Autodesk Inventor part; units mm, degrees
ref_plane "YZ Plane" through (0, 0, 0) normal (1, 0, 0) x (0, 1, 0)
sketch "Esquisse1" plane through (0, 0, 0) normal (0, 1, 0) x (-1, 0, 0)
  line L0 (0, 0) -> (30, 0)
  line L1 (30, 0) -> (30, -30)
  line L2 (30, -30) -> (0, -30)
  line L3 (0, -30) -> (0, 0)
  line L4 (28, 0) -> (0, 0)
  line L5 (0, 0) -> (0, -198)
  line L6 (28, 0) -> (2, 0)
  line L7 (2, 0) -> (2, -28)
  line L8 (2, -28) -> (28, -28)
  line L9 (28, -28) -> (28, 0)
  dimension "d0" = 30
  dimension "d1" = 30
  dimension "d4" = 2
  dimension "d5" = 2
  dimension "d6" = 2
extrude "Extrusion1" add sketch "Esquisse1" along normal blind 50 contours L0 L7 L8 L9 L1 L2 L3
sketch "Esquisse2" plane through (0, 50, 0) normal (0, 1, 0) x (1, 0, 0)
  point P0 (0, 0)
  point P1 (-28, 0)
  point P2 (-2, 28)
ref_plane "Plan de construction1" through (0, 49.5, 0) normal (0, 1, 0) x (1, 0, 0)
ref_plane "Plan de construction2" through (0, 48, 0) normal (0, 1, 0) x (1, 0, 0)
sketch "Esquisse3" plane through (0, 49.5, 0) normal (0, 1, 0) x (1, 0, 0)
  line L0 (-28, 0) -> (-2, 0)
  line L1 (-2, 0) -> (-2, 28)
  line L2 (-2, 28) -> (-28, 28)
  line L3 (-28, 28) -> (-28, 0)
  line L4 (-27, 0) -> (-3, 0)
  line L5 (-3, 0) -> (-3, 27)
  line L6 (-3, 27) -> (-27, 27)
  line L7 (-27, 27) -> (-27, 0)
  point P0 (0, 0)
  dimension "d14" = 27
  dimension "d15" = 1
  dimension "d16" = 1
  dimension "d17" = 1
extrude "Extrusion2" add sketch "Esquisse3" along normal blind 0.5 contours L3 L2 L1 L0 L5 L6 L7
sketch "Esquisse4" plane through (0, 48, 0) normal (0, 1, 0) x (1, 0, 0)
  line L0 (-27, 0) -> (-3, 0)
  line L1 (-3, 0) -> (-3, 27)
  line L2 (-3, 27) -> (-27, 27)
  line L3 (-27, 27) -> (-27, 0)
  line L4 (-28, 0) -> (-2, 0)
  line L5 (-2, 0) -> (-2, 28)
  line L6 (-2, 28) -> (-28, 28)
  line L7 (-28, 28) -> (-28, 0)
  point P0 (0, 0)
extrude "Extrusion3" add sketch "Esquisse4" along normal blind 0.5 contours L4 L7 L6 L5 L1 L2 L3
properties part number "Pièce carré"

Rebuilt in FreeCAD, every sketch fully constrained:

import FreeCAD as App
import Part
import Sketcher
from FreeCAD import Vector
Q = App.Units.Quantity


def add_polygon(sketch, points):
    """Adds a closed chain of lines whose ends are joined by coincident constraints."""
    first, n = sketch.GeometryCount, len(points)
    for a, b in zip(points, points[1:] + points[:1]):
        sketch.addGeometry(Part.LineSegment(App.Vector(*a, 0), App.Vector(*b, 0)), False)
    for i in range(n):
        sketch.addConstraint(Sketcher.Constraint("Coincident", first + i, 2, first + (i + 1) % n, 1))

doc = App.newDocument("Part")
params = doc.addObject("Spreadsheet::Sheet", "Params")
for row, (alias, value) in enumerate([
    ("sketch1_width", "2 mm"),
    ("sketch1_width2", "30 mm"),
    ("pad1_length", "50 mm"),
    ("sketch2_width", "1 mm"),
    ("sketch2_height", "27 mm"),
    ("sketch2_width2", "24 mm"),
    ("pad2_length", "0.5 mm"),
    ("sketch3_width", "1 mm"),
    ("sketch3_width2", "24 mm"),
    ("sketch3_height", "27 mm"),
    ("sketch3_height2", "28 mm"),
    ("pad3_length", "0.5 mm"),
], start=1):
    params.set(f"A{row}", alias)
    params.set(f"B{row}", "=" + value)
    params.setAlias(f"B{row}", alias)

body = doc.addObject("PartDesign::Body", "Body")

# Sketch on XZ plane
sketch1 = doc.addObject("Sketcher::SketchObject", "Sketch")
body.addObject(sketch1)
sketch1.AttachmentSupport = (doc.XZ_Plane, [""])
sketch1.MapMode = "FlatFace"
add_polygon(sketch1, [(-2, 0), (0, 0), (0, -30), (-30, -30), (-30, 0), (-28, 0), (-28, -28), (-2, -28)])  # lines 0-7
sketch1.addConstraint(Sketcher.Constraint("Horizontal", 0))
sketch1.addConstraint(Sketcher.Constraint("Vertical", 1))
sketch1.addConstraint(Sketcher.Constraint("Horizontal", 2))
sketch1.addConstraint(Sketcher.Constraint("Vertical", 3))
sketch1.addConstraint(Sketcher.Constraint("Horizontal", 4))
sketch1.addConstraint(Sketcher.Constraint("Vertical", 5))
sketch1.addConstraint(Sketcher.Constraint("Horizontal", 6))
sketch1.addConstraint(Sketcher.Constraint("Vertical", 7))
sketch1.addConstraint(Sketcher.Constraint("Coincident", 0, 2, -1, 1))
sketch1.addConstraint(Sketcher.Constraint("PointOnObject", 3, 2, -1))
sketch1.addConstraint(Sketcher.Constraint("Equal", 0, 4))
sketch1.addConstraint(Sketcher.Constraint("Equal", 2, 1))
sketch1.addConstraint(Sketcher.Constraint("DistanceX", 0, 1, 0, 2, Q("2 mm")))
sketch1.addConstraint(Sketcher.Constraint("DistanceX", 2, 2, 2, 1, Q("30 mm")))
sketch1.addConstraint(Sketcher.Constraint("DistanceY", 2, 2, 5, 2, Q("2 mm")))
sketch1.setExpression("Constraints[20]", "Params.sketch1_width")
sketch1.setExpression("Constraints[21]", "Params.sketch1_width2")
pad1 = doc.addObject("PartDesign::Pad", "Pad")
body.addObject(pad1)
pad1.Profile = sketch1
pad1.setExpression("Length", "Params.pad1_length")
pad1.Reversed = True

# Sketch on XZ plane
sketch2 = doc.addObject("Sketcher::SketchObject", "Sketch001")
body.addObject(sketch2)
sketch2.AttachmentSupport = (doc.XZ_Plane, [""])
sketch2.MapMode = "FlatFace"
sketch2.AttachmentOffset = App.Placement(Vector(0, 0, -49.5), App.Rotation())
add_polygon(sketch2, [(-28, -28), (-28, 0), (-27, 0), (-27, -27), (-3, -27), (-3, 0), (-2, 0), (-2, -28)])  # lines 0-7
sketch2.addConstraint(Sketcher.Constraint("Vertical", 0))
sketch2.addConstraint(Sketcher.Constraint("Horizontal", 1))
sketch2.addConstraint(Sketcher.Constraint("Vertical", 2))
sketch2.addConstraint(Sketcher.Constraint("Horizontal", 3))
sketch2.addConstraint(Sketcher.Constraint("Vertical", 4))
sketch2.addConstraint(Sketcher.Constraint("Horizontal", 5))
sketch2.addConstraint(Sketcher.Constraint("Vertical", 6))
sketch2.addConstraint(Sketcher.Constraint("Horizontal", 7))
sketch2.addConstraint(Sketcher.Constraint("PointOnObject", 0, 2, -1))
sketch2.addConstraint(Sketcher.Constraint("PointOnObject", 4, 2, -1))
sketch2.addConstraint(Sketcher.Constraint("Equal", 1, 5))
sketch2.addConstraint(Sketcher.Constraint("DistanceX", 1, 1, 1, 2, Q("1 mm")))
sketch2.addConstraint(Sketcher.Constraint("DistanceY", 2, 2, 2, 1, Q("27 mm")))
sketch2.addConstraint(Sketcher.Constraint("DistanceX", 1, 2, -1, 1, Q("27 mm")))
sketch2.addConstraint(Sketcher.Constraint("DistanceY", 6, 2, 3, 2, Q("1 mm")))
sketch2.addConstraint(Sketcher.Constraint("DistanceX", 3, 1, 3, 2, Q("24 mm")))
sketch2.setExpression("Constraints[19]", "Params.sketch2_width")
sketch2.setExpression("Constraints[20]", "Params.sketch2_height")
sketch2.setExpression("Constraints[23]", "Params.sketch2_width2")
pad2 = doc.addObject("PartDesign::Pad", "Pad001")
body.addObject(pad2)
pad2.Profile = sketch2
pad2.setExpression("Length", "Params.pad2_length")
pad2.Reversed = True

# Sketch on XZ plane
sketch3 = doc.addObject("Sketcher::SketchObject", "Sketch002")
body.addObject(sketch3)
sketch3.AttachmentSupport = (doc.XZ_Plane, [""])
sketch3.MapMode = "FlatFace"
sketch3.AttachmentOffset = App.Placement(Vector(0, 0, -48), App.Rotation())
add_polygon(sketch3, [(-28, 0), (-27, 0), (-27, -27), (-3, -27), (-3, 0), (-2, 0), (-2, -28), (-28, -28)])  # lines 0-7
sketch3.addConstraint(Sketcher.Constraint("Horizontal", 0))
sketch3.addConstraint(Sketcher.Constraint("Vertical", 1))
sketch3.addConstraint(Sketcher.Constraint("Horizontal", 2))
sketch3.addConstraint(Sketcher.Constraint("Vertical", 3))
sketch3.addConstraint(Sketcher.Constraint("Horizontal", 4))
sketch3.addConstraint(Sketcher.Constraint("Vertical", 5))
sketch3.addConstraint(Sketcher.Constraint("Horizontal", 6))
sketch3.addConstraint(Sketcher.Constraint("Vertical", 7))
sketch3.addConstraint(Sketcher.Constraint("PointOnObject", 0, 2, -1))
sketch3.addConstraint(Sketcher.Constraint("PointOnObject", 3, 2, -1))
sketch3.addConstraint(Sketcher.Constraint("Equal", 0, 4))
sketch3.addConstraint(Sketcher.Constraint("DistanceX", 0, 1, 0, 2, Q("1 mm")))
sketch3.addConstraint(Sketcher.Constraint("DistanceX", 2, 1, 2, 2, Q("24 mm")))
sketch3.addConstraint(Sketcher.Constraint("DistanceY", 1, 2, 1, 1, Q("27 mm")))
sketch3.addConstraint(Sketcher.Constraint("DistanceY", 5, 2, 5, 1, Q("28 mm")))
sketch3.addConstraint(Sketcher.Constraint("DistanceX", 0, 2, -1, 1, Q("27 mm")))
sketch3.setExpression("Constraints[19]", "Params.sketch3_width")
sketch3.setExpression("Constraints[20]", "Params.sketch3_width2")
sketch3.setExpression("Constraints[21]", "Params.sketch3_height")
sketch3.setExpression("Constraints[22]", "Params.sketch3_height2")
pad3 = doc.addObject("PartDesign::Pad", "Pad002")
body.addObject(pad3)
pad3.Profile = sketch3
pad3.setExpression("Length", "Params.pad3_length")
pad3.Reversed = True

doc.recompute()
